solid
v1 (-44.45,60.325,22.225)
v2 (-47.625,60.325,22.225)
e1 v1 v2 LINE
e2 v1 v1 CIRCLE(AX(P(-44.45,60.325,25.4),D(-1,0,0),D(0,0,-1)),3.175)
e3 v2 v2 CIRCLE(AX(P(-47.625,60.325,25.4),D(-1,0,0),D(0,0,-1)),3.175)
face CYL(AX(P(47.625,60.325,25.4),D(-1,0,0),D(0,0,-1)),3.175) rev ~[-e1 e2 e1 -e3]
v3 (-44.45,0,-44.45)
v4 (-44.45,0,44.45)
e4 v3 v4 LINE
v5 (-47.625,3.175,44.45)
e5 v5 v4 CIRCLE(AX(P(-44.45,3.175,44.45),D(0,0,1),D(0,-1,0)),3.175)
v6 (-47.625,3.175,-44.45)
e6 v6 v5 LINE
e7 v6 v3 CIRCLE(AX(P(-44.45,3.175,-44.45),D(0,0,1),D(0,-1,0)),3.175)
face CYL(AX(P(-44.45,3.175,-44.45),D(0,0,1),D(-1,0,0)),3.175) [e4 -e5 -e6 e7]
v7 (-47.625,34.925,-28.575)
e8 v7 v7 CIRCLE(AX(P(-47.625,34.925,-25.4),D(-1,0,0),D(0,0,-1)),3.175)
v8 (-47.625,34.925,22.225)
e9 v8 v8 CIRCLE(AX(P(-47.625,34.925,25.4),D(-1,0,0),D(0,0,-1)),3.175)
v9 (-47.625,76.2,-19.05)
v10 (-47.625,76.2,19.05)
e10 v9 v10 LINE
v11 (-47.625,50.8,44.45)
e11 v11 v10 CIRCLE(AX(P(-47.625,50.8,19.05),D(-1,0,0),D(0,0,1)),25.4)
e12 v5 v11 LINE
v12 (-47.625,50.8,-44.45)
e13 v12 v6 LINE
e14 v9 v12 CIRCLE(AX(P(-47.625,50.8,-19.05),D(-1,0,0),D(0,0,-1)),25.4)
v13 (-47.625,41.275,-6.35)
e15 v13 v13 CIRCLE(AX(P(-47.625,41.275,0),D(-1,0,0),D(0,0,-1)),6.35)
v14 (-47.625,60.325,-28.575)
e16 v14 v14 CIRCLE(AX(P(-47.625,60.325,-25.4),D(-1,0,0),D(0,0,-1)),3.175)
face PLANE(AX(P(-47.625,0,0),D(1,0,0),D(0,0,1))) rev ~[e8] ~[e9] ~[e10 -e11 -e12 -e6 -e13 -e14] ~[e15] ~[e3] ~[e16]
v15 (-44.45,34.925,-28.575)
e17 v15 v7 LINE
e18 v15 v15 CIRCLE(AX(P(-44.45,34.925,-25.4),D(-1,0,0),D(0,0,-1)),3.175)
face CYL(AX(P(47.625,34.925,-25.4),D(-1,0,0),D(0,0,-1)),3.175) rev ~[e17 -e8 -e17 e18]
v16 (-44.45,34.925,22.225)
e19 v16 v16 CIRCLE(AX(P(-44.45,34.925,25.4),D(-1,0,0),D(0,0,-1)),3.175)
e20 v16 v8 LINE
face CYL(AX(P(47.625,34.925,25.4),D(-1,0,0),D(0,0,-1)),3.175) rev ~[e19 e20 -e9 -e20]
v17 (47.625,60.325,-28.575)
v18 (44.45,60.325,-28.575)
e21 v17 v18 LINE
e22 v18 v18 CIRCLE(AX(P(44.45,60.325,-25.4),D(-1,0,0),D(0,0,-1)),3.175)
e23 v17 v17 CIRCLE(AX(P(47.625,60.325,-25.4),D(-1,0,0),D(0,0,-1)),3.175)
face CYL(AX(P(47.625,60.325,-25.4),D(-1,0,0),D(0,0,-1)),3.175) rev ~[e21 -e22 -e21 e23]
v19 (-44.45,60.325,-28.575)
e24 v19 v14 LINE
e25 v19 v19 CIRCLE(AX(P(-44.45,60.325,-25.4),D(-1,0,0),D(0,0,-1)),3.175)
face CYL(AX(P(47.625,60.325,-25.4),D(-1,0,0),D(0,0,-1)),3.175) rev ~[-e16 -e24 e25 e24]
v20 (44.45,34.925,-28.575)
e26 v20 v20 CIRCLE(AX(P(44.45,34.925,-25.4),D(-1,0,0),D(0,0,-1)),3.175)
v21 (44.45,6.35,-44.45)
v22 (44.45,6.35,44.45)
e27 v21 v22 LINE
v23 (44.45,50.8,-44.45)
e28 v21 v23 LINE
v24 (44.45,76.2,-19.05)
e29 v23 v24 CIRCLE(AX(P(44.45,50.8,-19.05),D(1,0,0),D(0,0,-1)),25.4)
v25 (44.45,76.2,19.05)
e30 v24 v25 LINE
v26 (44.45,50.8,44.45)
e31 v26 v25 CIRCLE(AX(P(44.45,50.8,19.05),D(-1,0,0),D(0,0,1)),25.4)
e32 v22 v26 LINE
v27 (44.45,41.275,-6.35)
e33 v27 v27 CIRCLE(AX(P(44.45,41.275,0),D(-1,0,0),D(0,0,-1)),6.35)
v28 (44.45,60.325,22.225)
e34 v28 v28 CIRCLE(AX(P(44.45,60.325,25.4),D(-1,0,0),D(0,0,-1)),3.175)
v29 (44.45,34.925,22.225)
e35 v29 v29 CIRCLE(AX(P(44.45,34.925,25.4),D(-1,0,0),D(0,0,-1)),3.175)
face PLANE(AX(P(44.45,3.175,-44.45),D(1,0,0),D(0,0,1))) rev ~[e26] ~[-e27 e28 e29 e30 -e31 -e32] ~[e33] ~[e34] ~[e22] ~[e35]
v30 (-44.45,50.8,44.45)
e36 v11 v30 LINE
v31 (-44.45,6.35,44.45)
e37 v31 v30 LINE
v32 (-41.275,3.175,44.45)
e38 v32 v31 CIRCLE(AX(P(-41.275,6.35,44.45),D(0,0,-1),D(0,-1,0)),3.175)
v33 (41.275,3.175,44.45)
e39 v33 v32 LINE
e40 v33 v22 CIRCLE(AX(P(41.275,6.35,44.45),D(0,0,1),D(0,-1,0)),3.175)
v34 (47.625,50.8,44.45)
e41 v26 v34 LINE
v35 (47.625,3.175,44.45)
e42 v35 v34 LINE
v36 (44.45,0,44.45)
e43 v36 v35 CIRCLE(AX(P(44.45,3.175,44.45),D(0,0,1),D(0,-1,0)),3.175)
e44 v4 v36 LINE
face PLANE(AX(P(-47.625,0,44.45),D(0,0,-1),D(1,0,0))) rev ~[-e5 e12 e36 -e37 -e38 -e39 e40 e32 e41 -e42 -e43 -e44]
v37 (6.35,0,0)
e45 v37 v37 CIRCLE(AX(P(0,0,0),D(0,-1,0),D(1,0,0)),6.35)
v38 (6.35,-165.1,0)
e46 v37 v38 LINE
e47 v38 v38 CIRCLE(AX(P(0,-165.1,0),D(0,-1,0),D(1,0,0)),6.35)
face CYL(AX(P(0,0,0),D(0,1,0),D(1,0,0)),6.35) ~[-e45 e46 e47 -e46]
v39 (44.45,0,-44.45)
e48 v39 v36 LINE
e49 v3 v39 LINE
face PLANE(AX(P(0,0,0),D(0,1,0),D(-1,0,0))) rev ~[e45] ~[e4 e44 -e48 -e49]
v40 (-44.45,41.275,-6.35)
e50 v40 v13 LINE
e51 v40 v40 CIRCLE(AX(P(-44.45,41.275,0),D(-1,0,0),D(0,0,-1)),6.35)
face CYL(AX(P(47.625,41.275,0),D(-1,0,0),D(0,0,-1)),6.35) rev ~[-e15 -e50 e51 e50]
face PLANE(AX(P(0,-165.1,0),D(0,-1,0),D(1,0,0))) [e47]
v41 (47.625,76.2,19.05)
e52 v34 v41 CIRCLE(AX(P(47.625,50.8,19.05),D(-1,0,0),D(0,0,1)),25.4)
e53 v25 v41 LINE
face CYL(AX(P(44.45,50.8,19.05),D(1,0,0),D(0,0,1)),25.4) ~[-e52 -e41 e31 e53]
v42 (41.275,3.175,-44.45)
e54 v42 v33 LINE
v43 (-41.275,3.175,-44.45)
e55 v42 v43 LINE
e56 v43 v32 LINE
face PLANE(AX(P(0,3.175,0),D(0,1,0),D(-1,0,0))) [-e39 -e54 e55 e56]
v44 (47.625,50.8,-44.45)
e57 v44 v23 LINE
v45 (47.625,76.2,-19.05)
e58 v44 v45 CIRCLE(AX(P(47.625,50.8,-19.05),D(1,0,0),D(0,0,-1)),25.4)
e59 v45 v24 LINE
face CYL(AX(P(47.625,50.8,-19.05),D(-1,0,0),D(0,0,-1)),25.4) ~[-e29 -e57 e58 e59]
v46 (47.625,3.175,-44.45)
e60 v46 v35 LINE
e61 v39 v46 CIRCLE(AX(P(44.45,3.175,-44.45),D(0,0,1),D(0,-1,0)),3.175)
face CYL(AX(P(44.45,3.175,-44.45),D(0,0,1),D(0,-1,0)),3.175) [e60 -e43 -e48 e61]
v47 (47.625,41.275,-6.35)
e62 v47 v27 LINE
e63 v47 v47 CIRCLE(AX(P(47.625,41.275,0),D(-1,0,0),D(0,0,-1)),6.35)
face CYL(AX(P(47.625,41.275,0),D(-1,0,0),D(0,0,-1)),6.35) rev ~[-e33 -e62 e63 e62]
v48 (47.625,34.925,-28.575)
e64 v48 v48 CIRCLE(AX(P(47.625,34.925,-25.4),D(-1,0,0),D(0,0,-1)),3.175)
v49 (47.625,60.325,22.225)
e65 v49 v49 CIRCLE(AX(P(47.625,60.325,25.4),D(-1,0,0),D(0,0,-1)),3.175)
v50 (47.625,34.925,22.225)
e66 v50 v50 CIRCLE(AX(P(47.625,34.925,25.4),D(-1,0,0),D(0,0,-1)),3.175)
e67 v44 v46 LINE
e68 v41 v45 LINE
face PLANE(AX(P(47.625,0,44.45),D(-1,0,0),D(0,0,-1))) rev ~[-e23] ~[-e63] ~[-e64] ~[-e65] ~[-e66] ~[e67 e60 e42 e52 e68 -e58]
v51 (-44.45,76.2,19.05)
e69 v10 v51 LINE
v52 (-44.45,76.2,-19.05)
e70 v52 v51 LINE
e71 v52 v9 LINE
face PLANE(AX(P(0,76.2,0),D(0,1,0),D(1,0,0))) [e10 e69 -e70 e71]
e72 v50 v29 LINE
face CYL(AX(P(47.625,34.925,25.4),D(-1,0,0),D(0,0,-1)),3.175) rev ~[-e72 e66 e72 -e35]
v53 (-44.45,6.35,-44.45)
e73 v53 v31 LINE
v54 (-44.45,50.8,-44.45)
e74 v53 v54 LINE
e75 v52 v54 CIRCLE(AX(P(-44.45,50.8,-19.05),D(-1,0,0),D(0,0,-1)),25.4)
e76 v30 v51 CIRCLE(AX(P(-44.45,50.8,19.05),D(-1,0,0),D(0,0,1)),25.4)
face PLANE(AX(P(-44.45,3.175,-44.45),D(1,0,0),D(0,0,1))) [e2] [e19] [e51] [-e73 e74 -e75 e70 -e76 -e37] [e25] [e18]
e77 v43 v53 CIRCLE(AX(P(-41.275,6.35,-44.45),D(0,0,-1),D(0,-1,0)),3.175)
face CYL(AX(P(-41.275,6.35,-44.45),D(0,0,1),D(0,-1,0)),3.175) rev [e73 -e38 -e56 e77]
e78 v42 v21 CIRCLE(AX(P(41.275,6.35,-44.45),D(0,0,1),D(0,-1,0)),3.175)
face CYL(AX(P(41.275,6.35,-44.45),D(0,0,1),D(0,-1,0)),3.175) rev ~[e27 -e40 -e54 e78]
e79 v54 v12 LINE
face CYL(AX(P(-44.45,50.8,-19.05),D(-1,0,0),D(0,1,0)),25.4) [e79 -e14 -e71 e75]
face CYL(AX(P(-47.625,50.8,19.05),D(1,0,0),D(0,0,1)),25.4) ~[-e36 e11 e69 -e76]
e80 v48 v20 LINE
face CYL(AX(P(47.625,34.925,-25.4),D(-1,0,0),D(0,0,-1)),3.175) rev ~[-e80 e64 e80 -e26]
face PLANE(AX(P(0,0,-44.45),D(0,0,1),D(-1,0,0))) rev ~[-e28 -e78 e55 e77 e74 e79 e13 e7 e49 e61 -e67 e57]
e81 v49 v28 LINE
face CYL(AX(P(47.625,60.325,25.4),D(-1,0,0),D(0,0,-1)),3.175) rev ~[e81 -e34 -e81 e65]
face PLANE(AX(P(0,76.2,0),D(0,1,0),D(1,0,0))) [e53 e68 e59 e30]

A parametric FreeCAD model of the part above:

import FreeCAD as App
import Part
import Sketcher

V = App.Vector
Q = App.Units.Quantity


def edges_at(feature, points):
    """Names of the edges that pass closest to the given points."""
    edges = feature.Shape.Edges
    near = lambda p: min(range(len(edges)), key=lambda i: edges[i].distToShape(Part.Vertex(*p))[0])
    return sorted({f"Edge{near(p) + 1}" for p in points})

doc = App.newDocument("Part")
params = doc.addObject("Spreadsheet::Sheet", "Params")
for row, (alias, value) in enumerate([
    ("sketch1_height", "3.5 in"),
    ("sketch1_width", "3.75 in"),
    ("pad1_length", "0.125 in"),
    ("sketch2_width", "0.125 in"),
    ("sketch2_height", "3.5 in"),
    ("pad2_length", "2.875 in"),
    ("fillet_radius", "0.125 in"),
    ("fillet2_radius", "1 in"),
    ("sketch3_diameter", "0.25 in"),
    ("hole_diameter", "0.25 in"),
    ("sketch4_diameter", "0.5 in"),
    ("hole2_diameter", "0.5 in"),
    ("sketch5_diameter", "0.5 in"),
    ("pad3_length", "6.5 in"),
], start=1):
    params.set(f"A{row}", alias)
    params.set(f"B{row}", "=" + value)
    params.setAlias(f"B{row}", alias)

body = doc.addObject("PartDesign::Body", "Body")

# Sketch on XZ plane
sketch1 = body.newObject("Sketcher::SketchObject", "Sketch")
sketch1.AttachmentSupport = (doc.getObject("XZ_Plane"), [""])
sketch1.MapMode = "FlatFace"
sketch1.addGeometry([
    Part.LineSegment(V(-48, 44, 0), V(48, 44, 0)),
    Part.LineSegment(V(48, 44, 0), V(48, -44, 0)),
    Part.LineSegment(V(48, -44, 0), V(-48, -44, 0)),
    Part.LineSegment(V(-48, -44, 0), V(-48, 44, 0)),
], False)
sketch1.addConstraint([
    Sketcher.Constraint("Coincident", 0, 2, 1, 1),
    Sketcher.Constraint("Coincident", 1, 2, 2, 1),
    Sketcher.Constraint("Coincident", 2, 2, 3, 1),
    Sketcher.Constraint("Coincident", 3, 2, 0, 1),
    Sketcher.Constraint("Horizontal", 0),
    Sketcher.Constraint("Vertical", 1),
    Sketcher.Constraint("Horizontal", 2),
    Sketcher.Constraint("Vertical", 3),
    Sketcher.Constraint("Symmetric", 0, 2, 2, 2, -1, 1),
    Sketcher.Constraint("DistanceY", 1, 2, 1, 1, Q("3.5 in")),
    Sketcher.Constraint("DistanceX", 0, 1, 0, 2, Q("3.75 in")),
])
sketch1.setExpression("Constraints[9]", "Params.sketch1_height")
sketch1.setExpression("Constraints[10]", "Params.sketch1_width")
pad1 = body.newObject("PartDesign::Pad", "Pad")
pad1.Profile = sketch1
pad1.setExpression("Length", "Params.pad1_length")
pad1.Reversed = True

# Sketch on XZ plane
sketch2 = body.newObject("Sketcher::SketchObject", "Sketch001")
sketch2.AttachmentSupport = (doc.getObject("XZ_Plane"), [""])
sketch2.MapMode = "FlatFace"
sketch2.AttachmentOffset = App.Placement(V(0, 0, -0.125 * 25.4), App.Rotation())
sketch2.addGeometry([
    Part.LineSegment(V(47.6, 44.5, 0), V(47.6, -44.5, 0)),  # 0
    Part.LineSegment(V(47.6, -44.5, 0), V(44.5, -44.5, 0)),  # 1
    Part.LineSegment(V(44.5, -44.5, 0), V(44.5, 44.5, 0)),  # 2
    Part.LineSegment(V(44.5, 44.5, 0), V(47.6, 44.5, 0)),  # 3
    Part.LineSegment(V(-44.5, 44.5, 0), V(-44.5, -44.5, 0)),  # 4
    Part.LineSegment(V(-44.5, -44.5, 0), V(-47.6, -44.5, 0)),  # 5
    Part.LineSegment(V(-47.6, -44.5, 0), V(-47.6, 44.5, 0)),  # 6
    Part.LineSegment(V(-47.6, 44.5, 0), V(-44.5, 44.5, 0)),  # 7
], False)
sketch2.addConstraint([
    Sketcher.Constraint("Coincident", 0, 2, 1, 1),
    Sketcher.Constraint("Coincident", 1, 2, 2, 1),
    Sketcher.Constraint("Coincident", 2, 2, 3, 1),
    Sketcher.Constraint("Coincident", 3, 2, 0, 1),
    Sketcher.Constraint("Coincident", 4, 2, 5, 1),
    Sketcher.Constraint("Coincident", 5, 2, 6, 1),
    Sketcher.Constraint("Coincident", 6, 2, 7, 1),
    Sketcher.Constraint("Coincident", 7, 2, 4, 1),
    Sketcher.Constraint("Vertical", 0),
    Sketcher.Constraint("Horizontal", 1),
    Sketcher.Constraint("Vertical", 2),
    Sketcher.Constraint("Horizontal", 3),
    Sketcher.Constraint("Vertical", 4),
    Sketcher.Constraint("Horizontal", 5),
    Sketcher.Constraint("Vertical", 6),
    Sketcher.Constraint("Horizontal", 7),
    Sketcher.Constraint("Symmetric", 2, 2, 4, 2, -1, 1),
    Sketcher.Constraint("Symmetric", 0, 2, 6, 2, -1, 1),
    Sketcher.Constraint("Horizontal", 1, 2, 4, 2),
    Sketcher.Constraint("DistanceX", 1, 2, 1, 1, Q("0.125 in")),
    Sketcher.Constraint("DistanceY", 0, 2, 0, 1, Q("3.5 in")),
    Sketcher.Constraint("DistanceX", 4, 2, 1, 2, Q("3.5 in")),
])
sketch2.setExpression("Constraints[19]", "Params.sketch2_width")
sketch2.setExpression("Constraints[20]", "Params.sketch2_height")
pad2 = body.newObject("PartDesign::Pad", "Pad001")
pad2.Profile = sketch2
pad2.setExpression("Length", "Params.pad2_length")
pad2.Reversed = True
doc.recompute()

fillet = body.newObject("PartDesign::Fillet", "Fillet")
fillet.Base = (pad2, edges_at(pad2, [
    (47.625, 0, 0),
    (44.45, 3.175, 0),
    (-47.625, 0, 0),
    (-44.45, 3.175, 0),
]))
fillet.setExpression("Radius", "Params.fillet_radius")
doc.recompute()

fillet2 = body.newObject("PartDesign::Fillet", "Fillet001")
fillet2.Base = (fillet, edges_at(fillet, [
    (46.038, 76.2, -44.45),
    (-46.038, 76.2, -44.45),
    (-46.038, 76.2, 44.45),
    (46.038, 76.2, 44.45),
]))
fillet2.setExpression("Radius", "Params.fillet2_radius")

# Sketch on YZ plane
sketch3 = body.newObject("Sketcher::SketchObject", "Sketch002")
sketch3.AttachmentSupport = (doc.getObject("YZ_Plane"), [""])
sketch3.MapMode = "FlatFace"
sketch3.AttachmentOffset = App.Placement(V(0, 0, 1.875 * 25.4), App.Rotation())
sketch3.addGeometry([
    Part.Circle(V(60.3, 25.4, 0), V(0, 0, 1), 3.2),
    Part.Circle(V(60.3, -25.4, 0), V(0, 0, 1), 3.2),
    Part.Circle(V(34.9, 25.4, 0), V(0, 0, 1), 3.2),
    Part.Circle(V(34.9, -25.4, 0), V(0, 0, 1), 3.2),
], False)
sketch3.addConstraint([
    Sketcher.Constraint("Equal", 0, 1),
    Sketcher.Constraint("Equal", 1, 2),
    Sketcher.Constraint("Equal", 2, 3),
    Sketcher.Constraint("Symmetric", 0, 3, 1, 3, -1),
    Sketcher.Constraint("Symmetric", 2, 3, 3, 3, -1),
    Sketcher.Constraint("Horizontal", 0, 3, 2, 3),
    Sketcher.Constraint("Diameter", 0, Q("0.25 in")),
    Sketcher.Constraint("DistanceY", -1, 1, 0, 3, Q("1 in")),
    Sketcher.Constraint("DistanceX", 2, 3, 0, 3, Q("1 in")),
    Sketcher.Constraint("DistanceX", -1, 1, 0, 3, Q("2.375 in")),
])
sketch3.setExpression("Constraints[6]", "Params.sketch3_diameter")
doc.recompute()
hole = body.newObject("PartDesign::Hole", "Hole")
hole.Profile = sketch3
hole.ThreadType = "None"
hole.setExpression("Diameter", "Params.hole_diameter")
hole.DepthType = "ThroughAll"

# Sketch on YZ plane
sketch4 = body.newObject("Sketcher::SketchObject", "Sketch003")
sketch4.AttachmentSupport = (doc.getObject("YZ_Plane"), [""])
sketch4.MapMode = "FlatFace"
sketch4.AttachmentOffset = App.Placement(V(0, 0, 1.875 * 25.4), App.Rotation())
sketch4.addGeometry(Part.Circle(V(41, 0, 0), V(0, 0, 1), 6), False)
sketch4.addConstraint([
    Sketcher.Constraint("PointOnObject", 0, 3, -1),
    Sketcher.Constraint("Diameter", 0, Q("0.5 in")),
    Sketcher.Constraint("DistanceX", -1, 1, 0, 3, Q("1.625 in")),
])
sketch4.setExpression("Constraints[1]", "Params.sketch4_diameter")
doc.recompute()
hole2 = body.newObject("PartDesign::Hole", "Hole001")
hole2.Profile = sketch4
hole2.ThreadType = "None"
hole2.setExpression("Diameter", "Params.hole2_diameter")
hole2.DepthType = "ThroughAll"

# Sketch on XZ plane
sketch5 = body.newObject("Sketcher::SketchObject", "Sketch004")
sketch5.AttachmentSupport = (doc.getObject("XZ_Plane"), [""])
sketch5.MapMode = "FlatFace"
sketch5.addGeometry(Part.Circle(V(0, 0, 0), V(0, 0, 1), 6), False)
sketch5.addConstraint([
    Sketcher.Constraint("Coincident", 0, 3, -1, 1),
    Sketcher.Constraint("Diameter", 0, Q("0.5 in")),
])
sketch5.setExpression("Constraints[1]", "Params.sketch5_diameter")
pad3 = body.newObject("PartDesign::Pad", "Pad002")
pad3.Profile = sketch5
pad3.setExpression("Length", "Params.pad3_length")

doc.recompute()
